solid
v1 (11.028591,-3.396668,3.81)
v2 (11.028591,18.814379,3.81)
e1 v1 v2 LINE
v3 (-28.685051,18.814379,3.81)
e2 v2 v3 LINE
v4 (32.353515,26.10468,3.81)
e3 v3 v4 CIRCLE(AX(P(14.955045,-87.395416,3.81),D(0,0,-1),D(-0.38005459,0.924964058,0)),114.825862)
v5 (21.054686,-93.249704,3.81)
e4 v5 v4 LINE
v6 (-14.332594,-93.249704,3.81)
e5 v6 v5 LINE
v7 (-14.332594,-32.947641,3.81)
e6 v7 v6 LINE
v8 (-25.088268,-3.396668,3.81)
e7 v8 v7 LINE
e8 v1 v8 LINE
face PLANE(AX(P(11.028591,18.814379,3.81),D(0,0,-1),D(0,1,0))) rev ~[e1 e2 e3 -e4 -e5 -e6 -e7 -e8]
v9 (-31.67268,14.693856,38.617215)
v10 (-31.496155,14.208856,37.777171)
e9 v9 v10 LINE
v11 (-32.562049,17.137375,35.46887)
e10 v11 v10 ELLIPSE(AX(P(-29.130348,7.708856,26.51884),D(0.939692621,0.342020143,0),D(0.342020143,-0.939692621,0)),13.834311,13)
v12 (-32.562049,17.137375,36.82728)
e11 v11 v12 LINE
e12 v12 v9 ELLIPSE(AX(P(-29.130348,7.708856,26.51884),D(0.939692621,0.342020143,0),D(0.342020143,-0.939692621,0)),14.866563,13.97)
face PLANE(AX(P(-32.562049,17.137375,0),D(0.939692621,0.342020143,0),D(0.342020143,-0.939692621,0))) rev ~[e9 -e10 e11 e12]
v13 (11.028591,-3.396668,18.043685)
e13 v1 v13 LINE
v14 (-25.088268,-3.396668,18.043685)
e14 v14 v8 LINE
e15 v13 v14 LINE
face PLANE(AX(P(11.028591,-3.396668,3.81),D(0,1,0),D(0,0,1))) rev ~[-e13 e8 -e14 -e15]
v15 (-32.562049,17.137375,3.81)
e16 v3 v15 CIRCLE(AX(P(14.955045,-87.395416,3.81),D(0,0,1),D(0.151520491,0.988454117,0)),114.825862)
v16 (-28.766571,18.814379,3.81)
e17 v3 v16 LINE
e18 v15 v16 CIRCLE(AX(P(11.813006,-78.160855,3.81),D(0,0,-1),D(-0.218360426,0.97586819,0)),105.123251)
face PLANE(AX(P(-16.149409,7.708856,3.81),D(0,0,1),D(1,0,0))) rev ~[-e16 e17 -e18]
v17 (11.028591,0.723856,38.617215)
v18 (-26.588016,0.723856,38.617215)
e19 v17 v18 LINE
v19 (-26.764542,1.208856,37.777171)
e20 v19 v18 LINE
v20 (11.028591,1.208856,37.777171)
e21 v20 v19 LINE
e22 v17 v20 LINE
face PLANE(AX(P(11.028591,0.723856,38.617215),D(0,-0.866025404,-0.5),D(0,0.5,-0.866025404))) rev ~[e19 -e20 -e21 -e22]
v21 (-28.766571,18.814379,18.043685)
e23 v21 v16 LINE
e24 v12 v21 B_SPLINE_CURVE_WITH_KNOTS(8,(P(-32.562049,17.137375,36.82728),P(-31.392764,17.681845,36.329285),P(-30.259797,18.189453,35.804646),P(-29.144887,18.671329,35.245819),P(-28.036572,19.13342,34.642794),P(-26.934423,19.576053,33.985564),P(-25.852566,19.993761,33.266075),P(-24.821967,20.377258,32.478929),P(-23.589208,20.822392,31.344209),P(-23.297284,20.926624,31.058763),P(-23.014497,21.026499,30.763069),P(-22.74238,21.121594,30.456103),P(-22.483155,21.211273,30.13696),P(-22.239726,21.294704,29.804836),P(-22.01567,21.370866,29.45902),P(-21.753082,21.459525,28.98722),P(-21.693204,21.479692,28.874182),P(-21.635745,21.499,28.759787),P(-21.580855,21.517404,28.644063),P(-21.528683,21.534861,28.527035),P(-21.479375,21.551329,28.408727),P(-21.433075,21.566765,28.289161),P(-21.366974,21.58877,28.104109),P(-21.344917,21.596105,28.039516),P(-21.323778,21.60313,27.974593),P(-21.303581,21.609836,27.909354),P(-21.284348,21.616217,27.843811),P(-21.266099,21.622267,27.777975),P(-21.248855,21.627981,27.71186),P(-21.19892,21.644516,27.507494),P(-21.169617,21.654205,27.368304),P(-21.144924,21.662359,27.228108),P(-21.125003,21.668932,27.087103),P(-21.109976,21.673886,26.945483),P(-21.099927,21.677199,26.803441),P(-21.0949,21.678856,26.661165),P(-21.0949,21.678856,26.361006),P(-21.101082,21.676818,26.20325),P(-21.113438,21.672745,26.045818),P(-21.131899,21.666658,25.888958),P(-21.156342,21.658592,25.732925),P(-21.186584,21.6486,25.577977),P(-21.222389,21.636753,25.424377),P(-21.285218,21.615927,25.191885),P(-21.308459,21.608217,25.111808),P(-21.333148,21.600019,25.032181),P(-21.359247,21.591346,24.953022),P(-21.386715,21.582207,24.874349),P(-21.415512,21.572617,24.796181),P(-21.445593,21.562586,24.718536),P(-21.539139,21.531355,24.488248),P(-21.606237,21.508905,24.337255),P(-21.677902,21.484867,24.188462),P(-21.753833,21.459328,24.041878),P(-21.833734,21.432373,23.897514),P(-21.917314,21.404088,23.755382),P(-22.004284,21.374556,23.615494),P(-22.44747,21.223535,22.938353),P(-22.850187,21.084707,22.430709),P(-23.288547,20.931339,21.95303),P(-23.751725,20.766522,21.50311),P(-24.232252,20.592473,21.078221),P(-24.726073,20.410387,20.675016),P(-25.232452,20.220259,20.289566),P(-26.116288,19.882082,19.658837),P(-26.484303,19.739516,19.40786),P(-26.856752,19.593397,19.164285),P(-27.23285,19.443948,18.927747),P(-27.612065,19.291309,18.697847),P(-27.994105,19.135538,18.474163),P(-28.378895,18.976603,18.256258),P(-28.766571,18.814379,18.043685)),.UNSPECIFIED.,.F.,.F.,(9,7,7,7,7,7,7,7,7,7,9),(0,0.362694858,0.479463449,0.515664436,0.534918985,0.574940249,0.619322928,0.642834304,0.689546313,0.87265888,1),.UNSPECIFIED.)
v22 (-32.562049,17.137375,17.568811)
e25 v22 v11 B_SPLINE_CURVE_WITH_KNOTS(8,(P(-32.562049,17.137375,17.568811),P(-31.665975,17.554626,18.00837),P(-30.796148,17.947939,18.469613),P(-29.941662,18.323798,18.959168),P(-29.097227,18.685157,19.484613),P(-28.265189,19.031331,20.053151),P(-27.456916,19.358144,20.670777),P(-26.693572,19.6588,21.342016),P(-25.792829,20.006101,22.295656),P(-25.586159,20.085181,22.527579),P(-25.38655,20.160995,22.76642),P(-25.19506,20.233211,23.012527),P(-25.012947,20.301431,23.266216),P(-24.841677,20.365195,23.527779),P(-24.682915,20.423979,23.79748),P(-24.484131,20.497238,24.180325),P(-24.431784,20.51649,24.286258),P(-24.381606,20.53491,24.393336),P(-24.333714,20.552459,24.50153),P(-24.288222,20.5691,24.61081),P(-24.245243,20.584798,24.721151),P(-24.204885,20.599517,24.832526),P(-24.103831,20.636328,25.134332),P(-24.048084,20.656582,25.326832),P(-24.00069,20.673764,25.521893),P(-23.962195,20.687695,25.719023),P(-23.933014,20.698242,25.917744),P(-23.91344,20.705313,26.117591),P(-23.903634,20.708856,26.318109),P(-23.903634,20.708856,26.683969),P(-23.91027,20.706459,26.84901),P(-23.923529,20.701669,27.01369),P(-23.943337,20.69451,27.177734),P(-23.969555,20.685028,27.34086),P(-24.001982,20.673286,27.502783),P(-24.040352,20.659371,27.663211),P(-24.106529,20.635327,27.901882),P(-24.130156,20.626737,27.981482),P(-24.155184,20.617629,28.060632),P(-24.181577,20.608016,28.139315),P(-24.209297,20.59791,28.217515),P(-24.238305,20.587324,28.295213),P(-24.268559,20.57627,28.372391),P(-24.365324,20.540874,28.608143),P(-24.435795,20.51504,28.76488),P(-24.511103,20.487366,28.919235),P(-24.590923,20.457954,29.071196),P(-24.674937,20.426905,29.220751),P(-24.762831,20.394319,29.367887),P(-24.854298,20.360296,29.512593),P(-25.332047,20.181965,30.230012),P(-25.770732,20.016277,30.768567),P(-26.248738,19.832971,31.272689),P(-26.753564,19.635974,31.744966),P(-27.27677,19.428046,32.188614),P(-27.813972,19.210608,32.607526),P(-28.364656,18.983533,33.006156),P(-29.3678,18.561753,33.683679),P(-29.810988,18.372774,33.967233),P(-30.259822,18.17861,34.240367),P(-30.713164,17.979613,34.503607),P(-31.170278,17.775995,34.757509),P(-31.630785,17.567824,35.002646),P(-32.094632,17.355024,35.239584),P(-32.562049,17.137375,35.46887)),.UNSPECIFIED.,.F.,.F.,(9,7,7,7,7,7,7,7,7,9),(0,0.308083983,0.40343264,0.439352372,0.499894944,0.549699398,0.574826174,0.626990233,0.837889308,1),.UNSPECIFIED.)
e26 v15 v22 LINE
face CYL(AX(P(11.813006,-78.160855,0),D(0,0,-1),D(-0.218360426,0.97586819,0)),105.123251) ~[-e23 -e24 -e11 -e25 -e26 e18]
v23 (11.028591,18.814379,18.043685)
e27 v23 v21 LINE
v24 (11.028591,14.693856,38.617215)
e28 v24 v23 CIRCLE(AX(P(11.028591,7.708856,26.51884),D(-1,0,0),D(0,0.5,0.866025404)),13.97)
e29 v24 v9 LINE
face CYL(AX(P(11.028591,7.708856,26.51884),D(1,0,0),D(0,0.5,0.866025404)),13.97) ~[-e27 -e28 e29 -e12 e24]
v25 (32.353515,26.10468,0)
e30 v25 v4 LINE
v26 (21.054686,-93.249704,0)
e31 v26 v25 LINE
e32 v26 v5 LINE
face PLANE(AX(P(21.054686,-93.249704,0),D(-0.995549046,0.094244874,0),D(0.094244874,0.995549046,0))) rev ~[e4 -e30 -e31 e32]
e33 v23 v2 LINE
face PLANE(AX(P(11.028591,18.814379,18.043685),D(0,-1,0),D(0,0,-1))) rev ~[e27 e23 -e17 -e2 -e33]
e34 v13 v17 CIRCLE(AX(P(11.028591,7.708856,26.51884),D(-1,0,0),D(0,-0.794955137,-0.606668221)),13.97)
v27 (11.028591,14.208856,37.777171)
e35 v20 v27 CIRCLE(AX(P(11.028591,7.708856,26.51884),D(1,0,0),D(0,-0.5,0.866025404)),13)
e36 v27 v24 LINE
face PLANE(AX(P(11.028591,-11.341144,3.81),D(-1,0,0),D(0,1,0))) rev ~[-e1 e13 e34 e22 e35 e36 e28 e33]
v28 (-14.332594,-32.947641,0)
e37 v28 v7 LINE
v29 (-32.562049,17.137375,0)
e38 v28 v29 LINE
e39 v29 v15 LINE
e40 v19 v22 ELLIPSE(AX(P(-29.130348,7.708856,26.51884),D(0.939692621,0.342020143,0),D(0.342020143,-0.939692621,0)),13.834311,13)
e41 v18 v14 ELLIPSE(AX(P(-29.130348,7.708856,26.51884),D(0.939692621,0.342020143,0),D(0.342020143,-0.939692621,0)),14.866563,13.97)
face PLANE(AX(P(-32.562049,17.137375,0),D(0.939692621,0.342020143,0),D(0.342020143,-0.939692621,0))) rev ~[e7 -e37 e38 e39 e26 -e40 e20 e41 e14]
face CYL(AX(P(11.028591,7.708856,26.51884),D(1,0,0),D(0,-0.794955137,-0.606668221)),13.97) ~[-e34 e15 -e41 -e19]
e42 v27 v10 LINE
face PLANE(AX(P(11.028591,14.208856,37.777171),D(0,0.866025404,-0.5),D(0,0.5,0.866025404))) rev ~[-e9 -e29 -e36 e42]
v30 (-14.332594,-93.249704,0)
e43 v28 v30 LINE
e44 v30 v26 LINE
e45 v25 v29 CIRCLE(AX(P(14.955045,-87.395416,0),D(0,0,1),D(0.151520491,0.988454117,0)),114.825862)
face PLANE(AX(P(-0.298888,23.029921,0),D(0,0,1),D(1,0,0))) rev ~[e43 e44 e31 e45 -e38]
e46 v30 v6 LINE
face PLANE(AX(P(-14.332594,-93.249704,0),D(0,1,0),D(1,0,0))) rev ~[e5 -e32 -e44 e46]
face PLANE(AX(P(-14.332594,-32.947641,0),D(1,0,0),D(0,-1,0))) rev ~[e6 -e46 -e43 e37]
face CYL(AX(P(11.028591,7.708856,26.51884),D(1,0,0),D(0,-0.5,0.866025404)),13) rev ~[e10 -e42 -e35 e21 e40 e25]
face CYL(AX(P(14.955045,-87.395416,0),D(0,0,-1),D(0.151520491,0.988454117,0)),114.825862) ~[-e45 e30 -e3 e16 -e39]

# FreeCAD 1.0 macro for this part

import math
import FreeCAD as App
import Part
import Sketcher

V = App.Vector
Q = App.Units.Quantity


def add_polygon(sketch, points):
    """Adds a closed chain of lines whose ends are joined by coincident constraints."""
    first, n = sketch.GeometryCount, len(points)
    for a, b in zip(points, points[1:] + points[:1]):
        sketch.addGeometry(Part.LineSegment(App.Vector(*a, 0), App.Vector(*b, 0)), False)
    for i in range(n):
        sketch.addConstraint(Sketcher.Constraint("Coincident", first + i, 2, first + (i + 1) % n, 1))

doc = App.newDocument("Part")
body = doc.addObject("PartDesign::Body", "Body")

sketch1 = doc.addObject("Sketcher::SketchObject", "Sketch")
body.addObject(sketch1)
sketch1.AttachmentSupport = (doc.XY_Plane, [""])
sketch1.MapMode = "FlatFace"
sketch1.addGeometry([
    Part.ArcOfCircle(Part.Circle(V(14.955045, -87.395416, 0), V(0, 0, 1), 114.825862), math.radians(81.284948), math.radians(114.444949)),
    Part.LineSegment(V(-32.562049, 17.137375, 0), V(-14.332594, -32.947641, 0)),
    Part.LineSegment(V(-14.332594, -32.947641, 0), V(-14.332594, -93.249704, 0)),
    Part.LineSegment(V(-14.332594, -93.249704, 0), V(21.054686, -93.249704, 0)),
    Part.LineSegment(V(21.054686, -93.249704, 0), V(32.353515, 26.10468, 0)),
], False)
sketch1.addConstraint([
    Sketcher.Constraint("Coincident", 0, 2, 1, 1),
    Sketcher.Constraint("Coincident", 1, 2, 2, 1),
    Sketcher.Constraint("Coincident", 2, 2, 3, 1),
    Sketcher.Constraint("Coincident", 3, 2, 4, 1),
    Sketcher.Constraint("Coincident", 4, 2, 0, 1),
    Sketcher.Constraint("Vertical", 2),
    Sketcher.Constraint("Horizontal", 3),
    Sketcher.Constraint("Angle", 1, Q("-70 deg")),
    Sketcher.Constraint("Distance", 4, Q("4.72 in")),
    Sketcher.Constraint("DistanceX", 3, 1, 3, 2, Q("1.3932 in")),
    Sketcher.Constraint("Radius", 0, 114.825862),
    Sketcher.Constraint("Distance", 1, Q("2.0984 in")),
    Sketcher.Constraint("DistanceY", 2, 2, 2, 1, 60.302064),
    Sketcher.Constraint("DistanceX", 0, 2, -1, 1, 32.562049),
    Sketcher.Constraint("DistanceY", 1, 2, -1, 1, 32.947641),
    Sketcher.Constraint("DistanceY", -1, 1, 4, 2, 26.10468),
])
pad1 = doc.addObject("PartDesign::Pad", "Pad")
body.addObject(pad1)
pad1.Profile = sketch1
pad1.Length = Q("0.15 in")

sketch2 = doc.addObject("Sketcher::SketchObject", "Sketch001")
body.addObject(sketch2)
sketch2.AttachmentSupport = (doc.XY_Plane, [""])
sketch2.MapMode = "FlatFace"
sketch2.AttachmentOffset = App.Placement(V(0, 0, 0.15 * 25.4), App.Rotation())
add_polygon(sketch2, [(-43.327409, 26.758856), (-43.327409, -11.341144), (11.028591, -11.341144), (11.028591, 26.758856)])
sketch2.addConstraint([
    Sketcher.Constraint("Vertical", 0),
    Sketcher.Constraint("Horizontal", 1),
    Sketcher.Constraint("Vertical", 2),
    Sketcher.Constraint("Horizontal", 3),
    Sketcher.Constraint("DistanceY", 0, 2, 0, 1, Q("1.5 in")),
    Sketcher.Constraint("DistanceX", 1, 1, 1, 2, Q("2.14 in")),
    Sketcher.Constraint("DistanceX", 0, 2, -1, 1, 43.327409),
    Sketcher.Constraint("DistanceY", 0, 2, -1, 1, 11.341144),
])
pad2 = doc.addObject("PartDesign::Pad", "Pad001")
body.addObject(pad2)
pad2.Profile = sketch2
pad2.Length = Q("2 in")

sketch3 = doc.addObject("Sketcher::SketchObject", "Sketch002")
body.addObject(sketch3)
sketch3.AttachmentSupport = (doc.YZ_Plane, [""])
sketch3.MapMode = "FlatFace"
sketch3.AttachmentOffset = App.Placement(V(0, 0, 11.028591), App.Rotation())
sketch3.addGeometry([
    Part.LineSegment(V(0.723856, 38.617215, 0), V(1.208856, 37.777171, 0)),
    Part.ArcOfCircle(Part.Circle(V(7.708856, 26.51884, 0), V(0, 0, 1), 13), math.radians(120), math.radians(420)),
    Part.LineSegment(V(14.208856, 37.777171, 0), V(14.693856, 38.617215, 0)),
    Part.ArcOfCircle(Part.Circle(V(7.708856, 26.51884, 0), V(0, 0, 1), 13.97), math.radians(-37.348982), math.radians(60)),
    Part.LineSegment(V(18.814379, 18.043685, 0), V(18.814379, 3.81, 0)),
    Part.LineSegment(V(18.814379, 3.81, 0), V(26.758856, 3.81, 0)),
    Part.LineSegment(V(26.758856, 3.81, 0), V(26.758856, 54.61, 0)),
    Part.LineSegment(V(26.758856, 54.61, 0), V(-11.341144, 54.61, 0)),
    Part.LineSegment(V(-11.341144, 54.61, 0), V(-11.341144, 3.81, 0)),
    Part.LineSegment(V(-11.341144, 3.81, 0), V(-3.396668, 3.81, 0)),
    Part.LineSegment(V(-3.396668, 3.81, 0), V(-3.396668, 18.043685, 0)),
    Part.ArcOfCircle(Part.Circle(V(7.708856, 26.51884, 0), V(0, 0, 1), 13.97), math.radians(120), math.radians(217.348982)),
], False)
sketch3.addConstraint([
    Sketcher.Constraint("Coincident", 0, 2, 1, 1),
    Sketcher.Constraint("Coincident", 1, 2, 2, 1),
    Sketcher.Constraint("Coincident", 2, 2, 3, 2),
    Sketcher.Constraint("Coincident", 3, 1, 4, 1),
    Sketcher.Constraint("Coincident", 4, 2, 5, 1),
    Sketcher.Constraint("Coincident", 5, 2, 6, 1),
    Sketcher.Constraint("Coincident", 6, 2, 7, 1),
    Sketcher.Constraint("Coincident", 7, 2, 8, 1),
    Sketcher.Constraint("Coincident", 8, 2, 9, 1),
    Sketcher.Constraint("Coincident", 9, 2, 10, 1),
    Sketcher.Constraint("Coincident", 10, 2, 11, 2),
    Sketcher.Constraint("Coincident", 11, 1, 0, 1),
    Sketcher.Constraint("Vertical", 4),
    Sketcher.Constraint("Horizontal", 5),
    Sketcher.Constraint("Vertical", 6),
    Sketcher.Constraint("Horizontal", 7),
    Sketcher.Constraint("Vertical", 8),
    Sketcher.Constraint("Horizontal", 9),
    Sketcher.Constraint("Vertical", 10),
    Sketcher.Constraint("Coincident", 3, 3, 1, 3),
    Sketcher.Constraint("Coincident", 11, 3, 1, 3),
    Sketcher.Constraint("Equal", 3, 11),
    Sketcher.Constraint("Horizontal", 0, 2, 1, 2),
    Sketcher.Constraint("Horizontal", 5, 2, 8, 2),
    Sketcher.Constraint("Horizontal", 3, 1, 10, 2),
    Sketcher.Constraint("Horizontal", 2, 2, 11, 1),
    Sketcher.Constraint("Equal", 5, 9),
    Sketcher.Constraint("DistanceY", 6, 1, 6, 2, Q("2 in")),
    Sketcher.Constraint("Radius", 3, Q("0.55 in")),
    Sketcher.Constraint("DistanceX", 7, 2, 7, 1, Q("1.5 in")),
    Sketcher.Constraint("Angle", 0, Q("-60 deg")),
    Sketcher.Constraint("DistanceY", -1, 1, 4, 2, Q("0.15 in")),
    Sketcher.Constraint("Radius", 1, 13.0),
    Sketcher.Constraint("DistanceX", 11, 1, 2, 2, Q("0.55 in")),
    Sketcher.Constraint("DistanceX", 5, 1, 5, 2, 7.944477),
    Sketcher.Constraint("DistanceY", 4, 2, 4, 1, 14.233685),
    Sketcher.Constraint("DistanceX", -1, 1, 3, 1, 18.814379),
])
pocket1 = doc.addObject("PartDesign::Pocket", "Pocket")
body.addObject(pocket1)
pocket1.Profile = sketch3
pocket1.Type = "ThroughAll"

sketch4 = doc.addObject("Sketcher::SketchObject", "Sketch003")
body.addObject(sketch4)
sketch4.AttachmentSupport = (doc.XY_Plane, [""])
sketch4.MapMode = "FlatFace"
sketch4.addGeometry([
    Part.ArcOfCircle(Part.Circle(V(11.813006, -78.160855, 0), V(0, 0, 1), 105.123251), math.radians(102.612751), math.radians(114.968762)),
    Part.LineSegment(V(-32.562049, 17.137375, 0), V(-22.962292, -9.23774, 0)),
    Part.LineSegment(V(-22.962292, -9.23774, 0), V(-52.269105, -17.825251, 0)),
    Part.LineSegment(V(-52.269105, -17.825251, 0), V(-60.050435, 34.569044, 0)),
    Part.LineSegment(V(-60.050435, 34.569044, 0), V(-11.141752, 24.425582, 0)),
], False)
sketch4.addConstraint([
    Sketcher.Constraint("Coincident", 0, 2, 1, 1),
    Sketcher.Constraint("Coincident", 1, 2, 2, 1),
    Sketcher.Constraint("Coincident", 2, 2, 3, 1),
    Sketcher.Constraint("Coincident", 3, 2, 4, 1),
    Sketcher.Constraint("Coincident", 4, 2, 0, 1),
    Sketcher.Constraint("Angle", 1, Q("-70 deg")),
    Sketcher.Constraint("Radius", 0, 105.123251),
    Sketcher.Constraint("DistanceY", 0, 3, 3, 2, 112.729898),
    Sketcher.Constraint("Distance", 1, 28.067811),
    Sketcher.Constraint("DistanceX", 0, 2, -1, 1, 32.562049),
    Sketcher.Constraint("DistanceY", 1, 2, -1, 1, 9.23774),
    Sketcher.Constraint("DistanceY", 2, 2, -1, 1, 17.825251),
    Sketcher.Constraint("DistanceY", 0, 3, 0, 2, 95.298229),
    Sketcher.Constraint("DistanceX", 2, 2, 0, 3, 64.082111),
    Sketcher.Constraint("DistanceX", 3, 2, 2, 2, 7.78133),
    Sketcher.Constraint("DistanceX", 1, 2, 4, 2, 11.82054),
])
pocket2 = doc.addObject("PartDesign::Pocket", "Pocket001")
body.addObject(pocket2)
pocket2.Profile = sketch4
pocket2.Type = "ThroughAll"
pocket2.Reversed = True

doc.recompute()
